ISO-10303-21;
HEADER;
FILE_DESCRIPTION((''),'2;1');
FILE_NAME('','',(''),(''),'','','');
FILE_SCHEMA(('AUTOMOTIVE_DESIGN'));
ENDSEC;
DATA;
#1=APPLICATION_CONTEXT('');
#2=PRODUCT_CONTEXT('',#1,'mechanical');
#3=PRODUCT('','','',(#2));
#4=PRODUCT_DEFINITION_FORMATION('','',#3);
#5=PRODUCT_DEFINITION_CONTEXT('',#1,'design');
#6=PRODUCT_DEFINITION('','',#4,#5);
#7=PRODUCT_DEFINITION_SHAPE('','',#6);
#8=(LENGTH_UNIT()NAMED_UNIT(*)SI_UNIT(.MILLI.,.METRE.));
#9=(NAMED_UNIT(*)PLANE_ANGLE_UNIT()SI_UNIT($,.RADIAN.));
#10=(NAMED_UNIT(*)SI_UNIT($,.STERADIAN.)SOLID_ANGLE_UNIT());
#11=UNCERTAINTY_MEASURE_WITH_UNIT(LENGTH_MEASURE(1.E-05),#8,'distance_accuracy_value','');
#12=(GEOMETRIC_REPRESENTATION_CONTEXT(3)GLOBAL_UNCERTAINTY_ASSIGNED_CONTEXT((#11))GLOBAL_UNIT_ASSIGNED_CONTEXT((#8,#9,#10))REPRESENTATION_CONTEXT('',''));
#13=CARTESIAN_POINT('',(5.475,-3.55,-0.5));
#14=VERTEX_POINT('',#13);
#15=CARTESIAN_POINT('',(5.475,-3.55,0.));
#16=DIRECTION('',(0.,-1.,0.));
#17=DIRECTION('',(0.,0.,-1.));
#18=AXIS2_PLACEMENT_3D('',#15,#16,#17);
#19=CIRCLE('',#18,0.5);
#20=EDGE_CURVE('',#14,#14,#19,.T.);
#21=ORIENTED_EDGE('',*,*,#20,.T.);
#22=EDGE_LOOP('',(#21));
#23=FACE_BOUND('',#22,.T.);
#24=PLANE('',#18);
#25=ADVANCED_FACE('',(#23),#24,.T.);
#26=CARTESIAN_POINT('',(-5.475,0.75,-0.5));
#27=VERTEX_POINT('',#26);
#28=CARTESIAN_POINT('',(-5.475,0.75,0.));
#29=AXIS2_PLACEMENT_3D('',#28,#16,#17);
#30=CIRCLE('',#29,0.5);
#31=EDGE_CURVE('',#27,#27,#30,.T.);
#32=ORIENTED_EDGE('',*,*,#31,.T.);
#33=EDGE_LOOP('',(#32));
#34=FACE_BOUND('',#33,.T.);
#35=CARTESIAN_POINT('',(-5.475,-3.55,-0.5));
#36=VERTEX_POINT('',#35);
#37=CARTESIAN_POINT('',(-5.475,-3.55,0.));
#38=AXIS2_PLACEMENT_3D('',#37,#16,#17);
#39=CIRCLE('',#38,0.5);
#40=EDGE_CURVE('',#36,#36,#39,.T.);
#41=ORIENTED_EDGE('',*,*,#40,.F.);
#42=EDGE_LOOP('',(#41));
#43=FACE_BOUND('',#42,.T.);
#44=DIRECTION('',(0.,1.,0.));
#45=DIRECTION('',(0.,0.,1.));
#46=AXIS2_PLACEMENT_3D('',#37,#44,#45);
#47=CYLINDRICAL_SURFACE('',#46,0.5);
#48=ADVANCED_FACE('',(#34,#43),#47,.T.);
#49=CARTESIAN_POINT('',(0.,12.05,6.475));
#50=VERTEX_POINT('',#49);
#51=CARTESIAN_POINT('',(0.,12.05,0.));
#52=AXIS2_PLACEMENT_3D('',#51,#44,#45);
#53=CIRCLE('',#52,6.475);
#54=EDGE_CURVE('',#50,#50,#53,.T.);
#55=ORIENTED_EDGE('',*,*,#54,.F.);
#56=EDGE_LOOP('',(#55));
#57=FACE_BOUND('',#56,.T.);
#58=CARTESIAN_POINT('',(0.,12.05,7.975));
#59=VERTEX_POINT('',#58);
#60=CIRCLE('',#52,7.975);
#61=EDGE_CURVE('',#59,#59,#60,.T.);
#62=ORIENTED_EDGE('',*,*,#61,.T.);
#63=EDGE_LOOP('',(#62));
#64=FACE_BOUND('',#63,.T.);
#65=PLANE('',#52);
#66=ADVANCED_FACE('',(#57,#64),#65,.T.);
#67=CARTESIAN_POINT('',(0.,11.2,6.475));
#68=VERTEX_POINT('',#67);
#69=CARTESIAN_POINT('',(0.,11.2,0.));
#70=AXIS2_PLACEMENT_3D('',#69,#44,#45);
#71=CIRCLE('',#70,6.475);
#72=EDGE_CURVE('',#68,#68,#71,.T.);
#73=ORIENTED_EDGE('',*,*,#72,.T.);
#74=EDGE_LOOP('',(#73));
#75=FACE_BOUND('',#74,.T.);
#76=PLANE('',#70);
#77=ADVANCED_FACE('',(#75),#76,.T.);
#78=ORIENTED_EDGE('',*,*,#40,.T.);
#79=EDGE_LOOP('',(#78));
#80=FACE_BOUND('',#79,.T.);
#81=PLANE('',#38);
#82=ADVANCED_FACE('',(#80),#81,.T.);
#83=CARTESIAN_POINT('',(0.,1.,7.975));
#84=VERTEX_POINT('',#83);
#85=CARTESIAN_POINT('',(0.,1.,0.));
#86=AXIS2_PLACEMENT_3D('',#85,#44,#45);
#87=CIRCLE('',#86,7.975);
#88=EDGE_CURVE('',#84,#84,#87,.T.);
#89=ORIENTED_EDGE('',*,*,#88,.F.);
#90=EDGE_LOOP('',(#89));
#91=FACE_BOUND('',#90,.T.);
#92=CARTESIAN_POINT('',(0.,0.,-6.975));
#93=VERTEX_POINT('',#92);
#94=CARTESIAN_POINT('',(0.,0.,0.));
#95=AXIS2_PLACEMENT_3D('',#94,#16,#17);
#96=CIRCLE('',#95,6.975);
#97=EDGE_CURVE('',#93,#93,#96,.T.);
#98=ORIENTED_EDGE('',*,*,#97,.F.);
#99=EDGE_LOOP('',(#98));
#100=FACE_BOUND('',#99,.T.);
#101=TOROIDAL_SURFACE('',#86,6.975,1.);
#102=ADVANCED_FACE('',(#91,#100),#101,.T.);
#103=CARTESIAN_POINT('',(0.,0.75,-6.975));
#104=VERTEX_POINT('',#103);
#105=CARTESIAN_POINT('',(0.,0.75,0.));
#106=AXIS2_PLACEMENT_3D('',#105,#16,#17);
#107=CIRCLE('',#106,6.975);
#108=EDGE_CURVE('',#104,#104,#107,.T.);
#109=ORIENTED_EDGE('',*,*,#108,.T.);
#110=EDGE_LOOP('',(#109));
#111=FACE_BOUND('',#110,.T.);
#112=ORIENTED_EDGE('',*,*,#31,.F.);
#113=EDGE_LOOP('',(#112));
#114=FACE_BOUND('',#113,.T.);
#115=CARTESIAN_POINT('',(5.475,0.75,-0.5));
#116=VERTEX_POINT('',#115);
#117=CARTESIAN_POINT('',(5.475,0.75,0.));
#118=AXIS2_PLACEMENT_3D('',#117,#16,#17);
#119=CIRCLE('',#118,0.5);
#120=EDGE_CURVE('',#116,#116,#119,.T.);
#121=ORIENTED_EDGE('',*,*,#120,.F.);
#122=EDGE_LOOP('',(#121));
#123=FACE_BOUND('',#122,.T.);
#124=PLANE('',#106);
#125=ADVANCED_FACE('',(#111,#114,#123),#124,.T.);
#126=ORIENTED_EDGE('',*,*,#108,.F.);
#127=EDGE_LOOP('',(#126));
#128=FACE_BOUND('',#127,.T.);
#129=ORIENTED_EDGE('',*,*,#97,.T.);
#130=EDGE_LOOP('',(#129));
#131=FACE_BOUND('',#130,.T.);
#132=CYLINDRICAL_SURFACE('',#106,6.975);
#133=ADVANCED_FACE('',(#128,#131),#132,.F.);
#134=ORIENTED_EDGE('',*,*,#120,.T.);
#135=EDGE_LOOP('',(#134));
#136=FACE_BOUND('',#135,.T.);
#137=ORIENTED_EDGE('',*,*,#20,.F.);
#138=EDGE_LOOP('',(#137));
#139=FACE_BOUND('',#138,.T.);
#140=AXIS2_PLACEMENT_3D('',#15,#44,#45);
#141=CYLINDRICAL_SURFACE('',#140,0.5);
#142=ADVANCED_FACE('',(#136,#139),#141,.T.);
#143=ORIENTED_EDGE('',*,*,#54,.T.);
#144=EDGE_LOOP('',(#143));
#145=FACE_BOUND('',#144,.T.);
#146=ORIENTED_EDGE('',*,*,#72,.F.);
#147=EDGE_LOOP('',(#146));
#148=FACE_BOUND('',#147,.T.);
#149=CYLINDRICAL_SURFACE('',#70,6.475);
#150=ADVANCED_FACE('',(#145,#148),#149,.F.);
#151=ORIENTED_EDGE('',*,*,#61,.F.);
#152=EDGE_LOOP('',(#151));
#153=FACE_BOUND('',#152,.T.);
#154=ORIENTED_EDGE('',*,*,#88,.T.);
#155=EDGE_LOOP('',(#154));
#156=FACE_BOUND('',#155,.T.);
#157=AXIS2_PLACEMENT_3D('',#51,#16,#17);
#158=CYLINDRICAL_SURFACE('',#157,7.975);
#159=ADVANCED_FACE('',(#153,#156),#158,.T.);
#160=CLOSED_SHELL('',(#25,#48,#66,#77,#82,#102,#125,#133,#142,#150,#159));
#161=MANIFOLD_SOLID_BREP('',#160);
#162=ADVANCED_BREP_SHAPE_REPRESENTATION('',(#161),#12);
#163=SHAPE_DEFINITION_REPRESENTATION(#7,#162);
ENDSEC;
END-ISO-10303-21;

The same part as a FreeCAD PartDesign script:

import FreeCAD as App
import Part
import Sketcher
from FreeCAD import Vector


def edges_at(feature, points):
    """Names of the edges that pass closest to the given points."""
    edges = feature.Shape.Edges
    near = lambda p: min(range(len(edges)), key=lambda i: edges[i].distToShape(Part.Vertex(*p))[0])
    return sorted({f"Edge{near(p) + 1}" for p in points})

doc = App.newDocument("Part")
body = doc.addObject("PartDesign::Body", "Body")

# Sketch on XZ plane
sketch1 = body.newObject("Sketcher::SketchObject", "Sketch")
sketch1.AttachmentSupport = (doc.getObject("XZ_Plane"), [""])
sketch1.MapMode = "FlatFace"
sketch1.addGeometry(Part.Circle(Vector(0, 0, 0), Vector(0, 0, 1), 8), False)
sketch1.addConstraint([
    Sketcher.Constraint("Coincident", 0, 3, -1, 1),
    Sketcher.Constraint("Diameter", 0, 15.95),
])
pad1 = body.newObject("PartDesign::Pad", "Pad")
pad1.Profile = sketch1
pad1.Length = 12.05
pad1.Reversed = True
doc.recompute()

fillet = body.newObject("PartDesign::Fillet", "Fillet")
fillet.Base = (pad1, edges_at(pad1, [(-7.975, 0, 0)]))
fillet.Radius = 1

# Sketch on XZ plane
sketch2 = body.newObject("Sketcher::SketchObject", "Sketch001")
sketch2.AttachmentSupport = (doc.getObject("XZ_Plane"), [""])
sketch2.MapMode = "FlatFace"
sketch2.addGeometry(Part.Circle(Vector(0, 0, 0), Vector(0, 0, 1), 7), False)
sketch2.addConstraint([
    Sketcher.Constraint("Coincident", 0, 3, -1, 1),
    Sketcher.Constraint("Diameter", 0, 13.95),
])
pocket1 = body.newObject("PartDesign::Pocket", "Pocket")
pocket1.Profile = sketch2
pocket1.Length = 0.75

# Sketch on XZ plane
sketch3 = body.newObject("Sketcher::SketchObject", "Sketch002")
sketch3.AttachmentSupport = (doc.getObject("XZ_Plane"), [""])
sketch3.MapMode = "FlatFace"
sketch3.AttachmentOffset = App.Placement(Vector(0, 0, -0.75), App.Rotation())
sketch3.addGeometry([
    Part.Circle(Vector(-5.5, 0, 0), Vector(0, 0, 1), 0.5),
    Part.Circle(Vector(5.5, 0, 0), Vector(0, 0, 1), 0.5),
], False)
sketch3.addConstraint([
    Sketcher.Constraint("Equal", 0, 1),
    Sketcher.Constraint("Symmetric", 0, 3, 1, 3, -1, 1),
    Sketcher.Constraint("PointOnObject", 0, 3, -1),
    Sketcher.Constraint("Diameter", 0, 1.0),
    Sketcher.Constraint("DistanceX", 0, 3, 1, 3, 10.95),
])
pad2 = body.newObject("PartDesign::Pad", "Pad001")
pad2.Profile = sketch3
pad2.Length = 4.3

# Sketch on XZ plane
sketch4 = body.newObject("Sketcher::SketchObject", "Sketch003")
sketch4.AttachmentSupport = (doc.getObject("XZ_Plane"), [""])
sketch4.MapMode = "FlatFace"
sketch4.AttachmentOffset = App.Placement(Vector(0, 0, -12.05), App.Rotation())
sketch4.addGeometry(Part.Circle(Vector(0, 0, 0), Vector(0, 0, 1), 6), False)
sketch4.addConstraint([
    Sketcher.Constraint("Coincident", 0, 3, -1, 1),
    Sketcher.Constraint("Diameter", 0, 12.95),
])
pocket2 = body.newObject("PartDesign::Pocket", "Pocket001")
pocket2.Profile = sketch4
pocket2.Length = 0.85
pocket2.Reversed = True

doc.recompute()
